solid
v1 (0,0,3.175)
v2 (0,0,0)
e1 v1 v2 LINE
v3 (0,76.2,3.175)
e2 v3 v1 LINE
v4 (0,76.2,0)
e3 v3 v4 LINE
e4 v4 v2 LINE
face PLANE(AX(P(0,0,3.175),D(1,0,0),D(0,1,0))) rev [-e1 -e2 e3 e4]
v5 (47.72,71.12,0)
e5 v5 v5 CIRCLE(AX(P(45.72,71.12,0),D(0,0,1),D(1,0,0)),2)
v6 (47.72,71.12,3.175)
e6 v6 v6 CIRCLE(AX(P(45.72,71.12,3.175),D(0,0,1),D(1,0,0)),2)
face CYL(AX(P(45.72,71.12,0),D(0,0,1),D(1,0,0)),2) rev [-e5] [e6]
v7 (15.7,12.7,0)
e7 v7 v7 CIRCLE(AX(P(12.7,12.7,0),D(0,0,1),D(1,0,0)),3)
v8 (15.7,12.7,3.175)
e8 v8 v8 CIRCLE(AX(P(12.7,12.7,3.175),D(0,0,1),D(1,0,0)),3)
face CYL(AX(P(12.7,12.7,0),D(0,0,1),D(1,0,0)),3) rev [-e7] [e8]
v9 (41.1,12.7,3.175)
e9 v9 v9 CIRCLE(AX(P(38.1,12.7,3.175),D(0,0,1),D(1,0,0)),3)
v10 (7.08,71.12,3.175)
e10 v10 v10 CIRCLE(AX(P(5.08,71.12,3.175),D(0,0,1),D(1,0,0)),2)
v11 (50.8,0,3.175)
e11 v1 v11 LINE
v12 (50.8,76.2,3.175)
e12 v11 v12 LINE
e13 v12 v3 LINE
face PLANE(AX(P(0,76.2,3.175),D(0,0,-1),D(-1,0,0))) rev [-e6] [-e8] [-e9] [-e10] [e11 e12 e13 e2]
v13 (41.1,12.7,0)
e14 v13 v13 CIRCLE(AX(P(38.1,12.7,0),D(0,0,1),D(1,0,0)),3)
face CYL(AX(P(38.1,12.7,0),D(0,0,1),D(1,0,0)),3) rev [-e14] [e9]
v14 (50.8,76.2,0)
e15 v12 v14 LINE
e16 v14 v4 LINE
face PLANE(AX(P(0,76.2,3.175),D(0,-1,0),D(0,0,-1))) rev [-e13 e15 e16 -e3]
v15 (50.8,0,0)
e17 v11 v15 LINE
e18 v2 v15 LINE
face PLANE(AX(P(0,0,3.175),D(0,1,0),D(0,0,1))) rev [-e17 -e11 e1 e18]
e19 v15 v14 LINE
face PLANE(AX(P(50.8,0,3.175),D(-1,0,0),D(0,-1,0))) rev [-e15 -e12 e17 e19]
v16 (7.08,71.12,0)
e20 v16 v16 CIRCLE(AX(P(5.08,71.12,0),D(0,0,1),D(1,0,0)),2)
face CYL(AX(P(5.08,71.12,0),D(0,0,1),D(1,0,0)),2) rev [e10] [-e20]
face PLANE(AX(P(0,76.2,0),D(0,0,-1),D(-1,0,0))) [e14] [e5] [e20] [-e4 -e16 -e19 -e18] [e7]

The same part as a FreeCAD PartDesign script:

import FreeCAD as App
import Part
import Sketcher

V = App.Vector
Q = App.Units.Quantity

doc = App.newDocument("Part")
body = doc.addObject("PartDesign::Body", "Body")

# Sketch on XY plane
sketch1 = body.newObject("Sketcher::SketchObject", "Sketch")
sketch1.AttachmentSupport = (doc.getObject("XY_Plane"), [""])
sketch1.MapMode = "FlatFace"
sketch1.addGeometry([
    Part.LineSegment(V(0, 76, 0), V(0, 0, 0)),
    Part.LineSegment(V(0, 0, 0), V(51, 0, 0)),
    Part.LineSegment(V(51, 0, 0), V(51, 76, 0)),
    Part.LineSegment(V(51, 76, 0), V(0, 76, 0)),
], False)
sketch1.addConstraint([
    Sketcher.Constraint("Coincident", 0, 2, 1, 1),
    Sketcher.Constraint("Coincident", 1, 2, 2, 1),
    Sketcher.Constraint("Coincident", 2, 2, 3, 1),
    Sketcher.Constraint("Coincident", 3, 2, 0, 1),
    Sketcher.Constraint("Vertical", 0),
    Sketcher.Constraint("Horizontal", 1),
    Sketcher.Constraint("Vertical", 2),
    Sketcher.Constraint("Horizontal", 3),
    Sketcher.Constraint("Coincident", 0, 2, -1, 1),
    Sketcher.Constraint("DistanceX", 1, 1, 1, 2, Q("2 in")),
    Sketcher.Constraint("DistanceY", 0, 2, 0, 1, Q("3 in")),
])
pad1 = body.newObject("PartDesign::Pad", "Pad")
pad1.Profile = sketch1
pad1.Length = Q("0.125 in")

# Sketch on XY plane
sketch2 = body.newObject("Sketcher::SketchObject", "Sketch001")
sketch2.AttachmentSupport = (doc.getObject("XY_Plane"), [""])
sketch2.MapMode = "FlatFace"
sketch2.AttachmentOffset = App.Placement(V(0, 0, 0.125 * 25.4), App.Rotation())
sketch2.addGeometry([
    Part.Circle(V(5.1, 71.1, 0), V(0, 0, 1), 2),
    Part.Circle(V(45.7, 71.1, 0), V(0, 0, 1), 2),
    Part.Circle(V(12.7, 12.7, 0), V(0, 0, 1), 3),
    Part.Circle(V(38.1, 12.7, 0), V(0, 0, 1), 3),
], False)
sketch2.addConstraint([
    Sketcher.Constraint("Equal", 0, 1),
    Sketcher.Constraint("Equal", 2, 3),
    Sketcher.Constraint("Horizontal", 0, 3, 1, 3),
    Sketcher.Constraint("Horizontal", 2, 3, 3, 3),
    Sketcher.Constraint("DistanceX", 2, 3, 3, 3, Q("1 in")),
    Sketcher.Constraint("DistanceX", -1, 1, 0, 3, Q("0.2 in")),
    Sketcher.Constraint("DistanceY", -1, 1, 0, 3, Q("2.8 in")),
    Sketcher.Constraint("DistanceX", -1, 1, 1, 3, Q("1.8 in")),
    Sketcher.Constraint("DistanceX", -1, 1, 2, 3, Q("0.5 in")),
    Sketcher.Constraint("DistanceY", -1, 1, 2, 3, Q("0.5 in")),
    Sketcher.Constraint("Diameter", 0, Q("4 mm")),
    Sketcher.Constraint("Diameter", 2, Q("6 mm")),
])
pocket1 = body.newObject("PartDesign::Pocket", "Pocket")
pocket1.Profile = sketch2
pocket1.Type = "ThroughAll"

doc.recompute()
